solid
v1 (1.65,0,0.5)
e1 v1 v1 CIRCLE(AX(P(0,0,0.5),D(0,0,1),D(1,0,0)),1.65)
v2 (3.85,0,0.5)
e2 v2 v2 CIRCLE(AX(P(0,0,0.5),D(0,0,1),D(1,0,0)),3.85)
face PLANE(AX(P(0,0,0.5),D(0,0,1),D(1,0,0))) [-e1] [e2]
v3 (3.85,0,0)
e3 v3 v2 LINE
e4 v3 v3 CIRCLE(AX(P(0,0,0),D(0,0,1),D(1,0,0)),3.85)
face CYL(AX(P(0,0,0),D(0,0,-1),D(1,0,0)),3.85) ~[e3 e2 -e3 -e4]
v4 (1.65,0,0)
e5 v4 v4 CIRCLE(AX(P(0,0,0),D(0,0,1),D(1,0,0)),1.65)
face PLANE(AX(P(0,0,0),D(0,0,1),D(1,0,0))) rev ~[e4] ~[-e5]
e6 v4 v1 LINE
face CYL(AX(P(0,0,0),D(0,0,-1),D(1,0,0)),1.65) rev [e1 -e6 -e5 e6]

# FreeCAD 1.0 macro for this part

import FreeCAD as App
import Part
import Sketcher
Q = App.Units.Quantity

doc = App.newDocument("Part")
body = doc.addObject("PartDesign::Body", "Body")

sketch1 = body.newObject("Sketcher::SketchObject", "Sketch")
sketch1.AttachmentSupport = (doc.getObject("XY_Plane"), [""])
sketch1.MapMode = "FlatFace"
sketch1.addGeometry(Part.Circle(App.Vector(0, 0, 0), App.Vector(0, 0, 1), 3.9), False)
sketch1.addGeometry(Part.Circle(App.Vector(0, 0, 0), App.Vector(0, 0, 1), 1.6), False)
sketch1.addConstraint(Sketcher.Constraint("Coincident", 0, 3, -1, 1))
sketch1.addConstraint(Sketcher.Constraint("Coincident", 1, 3, -1, 1))
sketch1.addConstraint(Sketcher.Constraint("Diameter", 0, Q("7.7 mm")))
sketch1.addConstraint(Sketcher.Constraint("Diameter", 1, Q("3.3 mm")))
pad1 = body.newObject("PartDesign::Pad", "Pad")
pad1.Profile = sketch1
pad1.Length = 0.5

doc.recompute()
